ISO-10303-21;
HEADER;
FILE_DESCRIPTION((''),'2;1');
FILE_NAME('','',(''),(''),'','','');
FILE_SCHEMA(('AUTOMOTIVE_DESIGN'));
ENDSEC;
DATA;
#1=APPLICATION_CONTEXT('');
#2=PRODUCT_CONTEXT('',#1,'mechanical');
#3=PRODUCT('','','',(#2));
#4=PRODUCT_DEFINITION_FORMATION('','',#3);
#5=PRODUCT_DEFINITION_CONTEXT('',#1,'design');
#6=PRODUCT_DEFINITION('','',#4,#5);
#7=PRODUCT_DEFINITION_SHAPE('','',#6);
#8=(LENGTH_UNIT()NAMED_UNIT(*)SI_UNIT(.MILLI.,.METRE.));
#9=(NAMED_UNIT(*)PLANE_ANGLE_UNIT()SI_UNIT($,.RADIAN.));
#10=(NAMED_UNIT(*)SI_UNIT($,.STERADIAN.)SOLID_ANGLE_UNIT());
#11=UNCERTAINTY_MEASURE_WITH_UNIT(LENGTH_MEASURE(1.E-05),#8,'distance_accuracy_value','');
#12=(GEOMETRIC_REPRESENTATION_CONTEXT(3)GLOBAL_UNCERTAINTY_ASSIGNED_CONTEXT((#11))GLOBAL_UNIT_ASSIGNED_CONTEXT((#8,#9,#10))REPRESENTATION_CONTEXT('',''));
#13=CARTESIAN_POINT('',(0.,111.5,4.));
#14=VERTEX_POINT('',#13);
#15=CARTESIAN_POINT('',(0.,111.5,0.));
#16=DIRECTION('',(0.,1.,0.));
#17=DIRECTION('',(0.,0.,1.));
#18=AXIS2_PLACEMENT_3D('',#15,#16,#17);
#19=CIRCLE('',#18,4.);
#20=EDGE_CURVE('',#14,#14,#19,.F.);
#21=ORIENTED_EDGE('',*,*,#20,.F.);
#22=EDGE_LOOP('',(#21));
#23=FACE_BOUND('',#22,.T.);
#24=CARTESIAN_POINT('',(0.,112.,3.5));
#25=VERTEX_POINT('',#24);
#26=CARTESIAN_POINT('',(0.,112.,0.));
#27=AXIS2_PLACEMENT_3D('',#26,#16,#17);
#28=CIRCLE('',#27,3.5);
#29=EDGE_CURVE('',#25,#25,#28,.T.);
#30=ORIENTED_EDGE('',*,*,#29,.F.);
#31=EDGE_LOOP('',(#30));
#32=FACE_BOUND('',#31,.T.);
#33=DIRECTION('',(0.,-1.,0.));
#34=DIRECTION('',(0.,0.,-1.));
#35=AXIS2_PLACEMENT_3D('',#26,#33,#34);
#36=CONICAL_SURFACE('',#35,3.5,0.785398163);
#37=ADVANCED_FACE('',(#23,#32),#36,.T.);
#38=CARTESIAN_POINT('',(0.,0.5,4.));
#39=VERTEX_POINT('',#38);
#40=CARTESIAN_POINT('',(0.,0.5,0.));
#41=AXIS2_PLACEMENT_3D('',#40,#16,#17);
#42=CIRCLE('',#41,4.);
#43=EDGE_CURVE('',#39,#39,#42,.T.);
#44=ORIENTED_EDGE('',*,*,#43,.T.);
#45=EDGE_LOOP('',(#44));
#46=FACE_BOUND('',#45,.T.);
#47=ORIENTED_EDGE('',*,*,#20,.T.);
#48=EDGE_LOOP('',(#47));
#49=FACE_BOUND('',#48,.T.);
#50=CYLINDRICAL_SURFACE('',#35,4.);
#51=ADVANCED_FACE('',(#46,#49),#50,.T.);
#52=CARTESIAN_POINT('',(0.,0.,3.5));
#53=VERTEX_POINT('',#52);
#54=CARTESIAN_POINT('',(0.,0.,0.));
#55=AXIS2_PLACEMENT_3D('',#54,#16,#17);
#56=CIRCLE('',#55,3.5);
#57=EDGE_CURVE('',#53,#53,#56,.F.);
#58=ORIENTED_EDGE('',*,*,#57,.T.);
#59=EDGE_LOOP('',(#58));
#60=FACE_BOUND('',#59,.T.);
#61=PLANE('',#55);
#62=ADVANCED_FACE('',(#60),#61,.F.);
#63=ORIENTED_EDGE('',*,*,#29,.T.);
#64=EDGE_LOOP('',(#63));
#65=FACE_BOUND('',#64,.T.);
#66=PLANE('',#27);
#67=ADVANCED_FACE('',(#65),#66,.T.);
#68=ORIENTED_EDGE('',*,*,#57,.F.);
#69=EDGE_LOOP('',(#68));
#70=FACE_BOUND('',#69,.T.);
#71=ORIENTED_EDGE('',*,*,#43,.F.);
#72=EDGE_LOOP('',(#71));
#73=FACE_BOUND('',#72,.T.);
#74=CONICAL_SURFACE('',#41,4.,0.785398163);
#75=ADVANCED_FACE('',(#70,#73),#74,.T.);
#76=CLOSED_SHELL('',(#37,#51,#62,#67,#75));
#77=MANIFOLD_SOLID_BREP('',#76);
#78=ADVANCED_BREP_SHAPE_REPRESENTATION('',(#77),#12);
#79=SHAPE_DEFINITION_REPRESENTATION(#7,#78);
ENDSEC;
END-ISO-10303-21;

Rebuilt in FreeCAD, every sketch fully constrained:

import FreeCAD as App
import Part
import Sketcher
from FreeCAD import Vector
Q = App.Units.Quantity


def edges_at(feature, points):
    """Names of the edges that pass closest to the given points."""
    edges = feature.Shape.Edges
    near = lambda p: min(range(len(edges)), key=lambda i: edges[i].distToShape(Part.Vertex(*p))[0])
    return sorted({f"Edge{near(p) + 1}" for p in points})

doc = App.newDocument("Part")
body = doc.addObject("PartDesign::Body", "Body")

# Sketch on XZ plane
sketch1 = body.newObject("Sketcher::SketchObject", "Sketch")
sketch1.AttachmentSupport = (doc.getObject("XZ_Plane"), [""])
sketch1.MapMode = "FlatFace"
sketch1.addGeometry(Part.Circle(Vector(0, 0, 0), Vector(0, 0, 1), 4), False)
sketch1.addConstraint(Sketcher.Constraint("Coincident", 0, 3, -1, 1))
sketch1.addConstraint(Sketcher.Constraint("Diameter", 0, Q("8 mm")))
pad1 = body.newObject("PartDesign::Pad", "Pad")
pad1.Profile = sketch1
pad1.Length = 112
pad1.Reversed = True
doc.recompute()

chamfer = body.newObject("PartDesign::Chamfer", "Chamfer")
chamfer.Base = (pad1, edges_at(pad1, [(-4, 0, 0), (-4, 112, 0)]))
chamfer.Size = 0.5

doc.recompute()
